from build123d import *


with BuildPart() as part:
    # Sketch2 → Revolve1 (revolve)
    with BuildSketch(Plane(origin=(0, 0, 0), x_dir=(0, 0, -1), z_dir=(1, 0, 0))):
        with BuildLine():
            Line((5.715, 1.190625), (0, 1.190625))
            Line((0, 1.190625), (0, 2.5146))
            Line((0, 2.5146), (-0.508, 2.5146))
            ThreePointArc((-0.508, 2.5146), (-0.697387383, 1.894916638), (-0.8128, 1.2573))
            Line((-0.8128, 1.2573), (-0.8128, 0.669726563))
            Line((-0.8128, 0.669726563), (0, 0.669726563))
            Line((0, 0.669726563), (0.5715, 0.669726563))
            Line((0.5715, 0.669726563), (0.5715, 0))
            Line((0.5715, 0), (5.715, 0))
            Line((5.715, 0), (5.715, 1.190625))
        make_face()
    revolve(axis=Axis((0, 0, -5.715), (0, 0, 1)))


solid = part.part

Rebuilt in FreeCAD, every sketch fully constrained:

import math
import FreeCAD as App
import Part
import Sketcher
Q = App.Units.Quantity

doc = App.newDocument("Part")
body = doc.addObject("PartDesign::Body", "Body")

sketch1 = doc.addObject("Sketcher::SketchObject", "Sketch")
body.addObject(sketch1)
sketch1.AttachmentSupport = (doc.YZ_Plane, [""])
sketch1.MapMode = "FlatFace"
sketch1.addGeometry([
    Part.LineSegment(App.Vector(1.2, -5.7, 0), App.Vector(1.2, 0, 0)),
    Part.LineSegment(App.Vector(1.2, 0, 0), App.Vector(2.5, 0, 0)),
    Part.LineSegment(App.Vector(2.5, 0, 0), App.Vector(2.5, 0.5, 0)),
    Part.ArcOfCircle(Part.Circle(App.Vector(0.6, -4.7, 0), App.Vector(0, 0, 1), 5.5), math.radians(69.64), math.radians(83.11)),
    Part.LineSegment(App.Vector(1.3, 0.8, 0), App.Vector(0.7, 0.8, 0)),
    Part.LineSegment(App.Vector(0.7, 0.8, 0), App.Vector(0.7, -0.6, 0)),
    Part.LineSegment(App.Vector(0.7, -0.6, 0), App.Vector(0, -0.6, 0)),
    Part.LineSegment(App.Vector(0, -0.6, 0), App.Vector(0, -5.7, 0)),
    Part.LineSegment(App.Vector(0, -5.7, 0), App.Vector(1.2, -5.7, 0)),
], False)
sketch1.addConstraint([
    Sketcher.Constraint("Coincident", 0, 2, 1, 1),
    Sketcher.Constraint("Coincident", 1, 2, 2, 1),
    Sketcher.Constraint("Coincident", 2, 2, 3, 1),
    Sketcher.Constraint("Coincident", 3, 2, 4, 1),
    Sketcher.Constraint("Coincident", 4, 2, 5, 1),
    Sketcher.Constraint("Coincident", 5, 2, 6, 1),
    Sketcher.Constraint("Coincident", 6, 2, 7, 1),
    Sketcher.Constraint("Coincident", 7, 2, 8, 1),
    Sketcher.Constraint("Coincident", 8, 2, 0, 1),
    Sketcher.Constraint("Vertical", 0),
    Sketcher.Constraint("Horizontal", 1),
    Sketcher.Constraint("Vertical", 2),
    Sketcher.Constraint("Horizontal", 4),
    Sketcher.Constraint("Vertical", 5),
    Sketcher.Constraint("Horizontal", 6),
    Sketcher.Constraint("Vertical", 7),
    Sketcher.Constraint("Horizontal", 8),
    Sketcher.Constraint("PointOnObject", 0, 2, -1),
    Sketcher.Constraint("PointOnObject", 6, 2, -2),
    Sketcher.Constraint("DistanceY", 2, 1, 2, 2, Q("0.02 in")),
    Sketcher.Constraint("DistanceX", 8, 1, 8, 2, Q("0.046875 in")),
    Sketcher.Constraint("DistanceY", 0, 1, 0, 2, Q("0.225 in")),
    Sketcher.Constraint("DistanceY", 5, 2, 5, 1, Q("0.0545 in")),
    Sketcher.Constraint("DistanceY", 7, 2, 7, 1, Q("0.2025 in")),
    Sketcher.Constraint("DistanceX", -1, 1, 1, 2, Q("0.099 in")),
    Sketcher.Constraint("DistanceX", -1, 1, 3, 2, Q("0.0495 in")),
    Sketcher.Constraint("Radius", 3, 5.516146),
    Sketcher.Constraint("DistanceX", 4, 2, 0, 2, 0.520898),
])
revolution = doc.addObject("PartDesign::Revolution", "Revolution")
body.addObject(revolution)
revolution.Profile = sketch1
revolution.ReferenceAxis = (sketch1, ["V_Axis"])
revolution.Angle = 360

doc.recompute()
